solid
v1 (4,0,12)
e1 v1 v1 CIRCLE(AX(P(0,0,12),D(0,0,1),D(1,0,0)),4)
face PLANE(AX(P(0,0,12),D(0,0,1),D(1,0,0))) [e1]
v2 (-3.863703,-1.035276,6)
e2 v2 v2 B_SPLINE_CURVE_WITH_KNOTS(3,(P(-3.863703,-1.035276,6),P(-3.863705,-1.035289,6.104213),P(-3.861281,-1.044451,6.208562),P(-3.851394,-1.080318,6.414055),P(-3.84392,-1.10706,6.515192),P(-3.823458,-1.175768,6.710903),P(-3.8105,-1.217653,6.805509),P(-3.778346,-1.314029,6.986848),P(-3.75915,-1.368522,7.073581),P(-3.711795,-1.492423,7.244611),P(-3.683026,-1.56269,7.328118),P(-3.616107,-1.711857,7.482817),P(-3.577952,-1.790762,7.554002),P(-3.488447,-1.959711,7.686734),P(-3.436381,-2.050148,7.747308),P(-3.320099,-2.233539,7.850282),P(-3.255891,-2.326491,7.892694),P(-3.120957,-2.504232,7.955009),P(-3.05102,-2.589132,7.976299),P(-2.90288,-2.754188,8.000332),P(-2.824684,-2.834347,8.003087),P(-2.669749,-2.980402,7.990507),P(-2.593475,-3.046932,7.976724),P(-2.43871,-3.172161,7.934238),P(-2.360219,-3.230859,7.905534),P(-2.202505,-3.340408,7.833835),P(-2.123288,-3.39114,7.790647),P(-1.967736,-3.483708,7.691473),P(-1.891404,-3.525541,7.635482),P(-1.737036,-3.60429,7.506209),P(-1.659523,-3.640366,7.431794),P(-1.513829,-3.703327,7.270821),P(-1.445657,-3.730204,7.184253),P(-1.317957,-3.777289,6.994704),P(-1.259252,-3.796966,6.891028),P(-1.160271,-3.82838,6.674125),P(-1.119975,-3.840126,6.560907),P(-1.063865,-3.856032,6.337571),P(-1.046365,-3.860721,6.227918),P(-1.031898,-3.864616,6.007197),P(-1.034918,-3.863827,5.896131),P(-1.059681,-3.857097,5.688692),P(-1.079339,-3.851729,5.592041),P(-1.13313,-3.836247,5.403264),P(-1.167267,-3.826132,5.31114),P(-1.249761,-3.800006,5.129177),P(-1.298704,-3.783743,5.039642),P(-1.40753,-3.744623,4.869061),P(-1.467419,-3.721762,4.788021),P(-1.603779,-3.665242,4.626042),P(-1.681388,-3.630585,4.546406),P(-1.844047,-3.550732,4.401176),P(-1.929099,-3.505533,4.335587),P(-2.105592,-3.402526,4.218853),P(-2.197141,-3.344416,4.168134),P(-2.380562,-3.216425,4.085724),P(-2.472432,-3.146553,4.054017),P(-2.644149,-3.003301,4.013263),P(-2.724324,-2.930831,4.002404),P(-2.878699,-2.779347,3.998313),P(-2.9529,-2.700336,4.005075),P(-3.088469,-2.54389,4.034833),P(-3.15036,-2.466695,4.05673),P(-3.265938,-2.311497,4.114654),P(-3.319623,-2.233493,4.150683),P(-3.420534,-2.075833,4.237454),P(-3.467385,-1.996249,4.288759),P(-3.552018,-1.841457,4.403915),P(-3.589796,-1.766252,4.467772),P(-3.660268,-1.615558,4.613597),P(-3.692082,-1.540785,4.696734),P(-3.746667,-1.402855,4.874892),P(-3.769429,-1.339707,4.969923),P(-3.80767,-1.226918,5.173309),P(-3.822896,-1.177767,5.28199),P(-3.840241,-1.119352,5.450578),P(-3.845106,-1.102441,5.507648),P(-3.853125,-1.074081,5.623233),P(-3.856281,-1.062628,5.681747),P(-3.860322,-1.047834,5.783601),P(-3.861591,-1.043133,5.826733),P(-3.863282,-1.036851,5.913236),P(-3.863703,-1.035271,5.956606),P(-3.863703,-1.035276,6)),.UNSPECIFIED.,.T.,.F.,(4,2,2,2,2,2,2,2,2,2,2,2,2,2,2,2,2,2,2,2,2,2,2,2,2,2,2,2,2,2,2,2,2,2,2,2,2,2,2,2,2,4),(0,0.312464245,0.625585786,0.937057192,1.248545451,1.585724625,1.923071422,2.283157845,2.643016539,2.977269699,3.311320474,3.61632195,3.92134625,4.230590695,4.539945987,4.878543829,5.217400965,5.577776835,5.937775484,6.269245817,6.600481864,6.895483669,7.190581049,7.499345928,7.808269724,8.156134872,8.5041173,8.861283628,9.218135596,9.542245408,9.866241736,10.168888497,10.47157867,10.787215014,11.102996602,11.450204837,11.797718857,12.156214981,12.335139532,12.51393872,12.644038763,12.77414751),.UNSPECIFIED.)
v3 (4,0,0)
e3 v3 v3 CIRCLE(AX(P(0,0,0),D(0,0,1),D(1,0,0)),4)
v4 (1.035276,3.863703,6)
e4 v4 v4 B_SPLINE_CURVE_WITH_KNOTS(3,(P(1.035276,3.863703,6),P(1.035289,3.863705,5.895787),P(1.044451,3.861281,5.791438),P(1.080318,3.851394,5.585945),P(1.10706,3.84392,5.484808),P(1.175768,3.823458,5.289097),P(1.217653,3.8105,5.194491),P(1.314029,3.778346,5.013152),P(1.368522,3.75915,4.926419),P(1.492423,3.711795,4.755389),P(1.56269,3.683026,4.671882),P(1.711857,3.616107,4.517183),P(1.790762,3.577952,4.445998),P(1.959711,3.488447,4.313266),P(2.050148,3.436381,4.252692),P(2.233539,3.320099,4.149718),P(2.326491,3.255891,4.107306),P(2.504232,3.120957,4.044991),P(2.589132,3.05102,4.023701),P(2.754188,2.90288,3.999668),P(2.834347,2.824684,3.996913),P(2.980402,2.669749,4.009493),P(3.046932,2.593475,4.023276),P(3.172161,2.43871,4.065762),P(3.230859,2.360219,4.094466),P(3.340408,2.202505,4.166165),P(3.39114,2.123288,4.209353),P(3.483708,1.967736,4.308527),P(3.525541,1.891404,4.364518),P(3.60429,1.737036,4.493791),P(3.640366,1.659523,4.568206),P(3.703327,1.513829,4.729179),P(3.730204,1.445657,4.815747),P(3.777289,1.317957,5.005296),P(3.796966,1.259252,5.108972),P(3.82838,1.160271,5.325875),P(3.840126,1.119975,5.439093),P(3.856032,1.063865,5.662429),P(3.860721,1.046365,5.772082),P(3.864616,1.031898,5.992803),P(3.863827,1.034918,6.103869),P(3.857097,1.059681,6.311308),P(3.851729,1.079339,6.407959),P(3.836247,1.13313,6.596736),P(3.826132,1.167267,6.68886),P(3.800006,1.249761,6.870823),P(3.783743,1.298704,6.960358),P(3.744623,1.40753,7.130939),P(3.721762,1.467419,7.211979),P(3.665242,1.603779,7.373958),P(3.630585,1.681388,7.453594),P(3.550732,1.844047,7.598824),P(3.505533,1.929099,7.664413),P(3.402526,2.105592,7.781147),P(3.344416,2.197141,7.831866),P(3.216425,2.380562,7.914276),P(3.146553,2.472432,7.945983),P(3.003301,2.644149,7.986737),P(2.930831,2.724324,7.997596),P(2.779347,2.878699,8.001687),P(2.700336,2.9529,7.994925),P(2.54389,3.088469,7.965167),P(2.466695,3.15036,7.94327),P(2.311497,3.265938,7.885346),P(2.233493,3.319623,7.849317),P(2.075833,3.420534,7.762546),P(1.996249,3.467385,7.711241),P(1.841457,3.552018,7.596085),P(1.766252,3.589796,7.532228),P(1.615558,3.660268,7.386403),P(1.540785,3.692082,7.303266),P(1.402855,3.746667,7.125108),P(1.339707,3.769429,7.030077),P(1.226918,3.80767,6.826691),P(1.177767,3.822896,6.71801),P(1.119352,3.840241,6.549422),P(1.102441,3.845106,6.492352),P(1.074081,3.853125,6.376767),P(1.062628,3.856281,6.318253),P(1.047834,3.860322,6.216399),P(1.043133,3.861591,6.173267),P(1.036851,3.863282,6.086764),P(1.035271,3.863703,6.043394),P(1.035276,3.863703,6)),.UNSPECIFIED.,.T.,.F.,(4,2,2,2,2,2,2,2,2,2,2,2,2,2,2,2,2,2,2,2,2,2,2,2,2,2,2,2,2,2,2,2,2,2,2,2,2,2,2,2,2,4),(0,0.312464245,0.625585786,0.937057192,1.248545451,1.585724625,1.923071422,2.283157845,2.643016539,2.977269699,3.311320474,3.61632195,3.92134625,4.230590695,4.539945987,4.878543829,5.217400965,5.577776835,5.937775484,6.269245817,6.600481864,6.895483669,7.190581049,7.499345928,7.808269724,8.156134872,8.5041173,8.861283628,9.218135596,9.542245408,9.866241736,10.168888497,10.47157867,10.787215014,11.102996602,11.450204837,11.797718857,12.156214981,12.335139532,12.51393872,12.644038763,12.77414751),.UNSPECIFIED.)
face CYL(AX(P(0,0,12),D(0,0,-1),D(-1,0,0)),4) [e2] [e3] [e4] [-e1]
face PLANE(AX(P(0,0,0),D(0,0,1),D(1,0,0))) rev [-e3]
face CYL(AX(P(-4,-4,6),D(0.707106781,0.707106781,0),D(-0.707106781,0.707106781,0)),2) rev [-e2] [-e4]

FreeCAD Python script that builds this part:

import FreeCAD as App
import Part
import Sketcher

doc = App.newDocument("Part")
body = doc.addObject("PartDesign::Body", "Body")

# Sketch on XY plane
sketch1 = body.newObject("Sketcher::SketchObject", "Sketch")
sketch1.AttachmentSupport = (doc.getObject("XY_Plane"), [""])
sketch1.MapMode = "FlatFace"
sketch1.addGeometry(Part.Circle(App.Vector(0, 0, 0), App.Vector(0, 0, 1), 4), False)
sketch1.addConstraint([
    Sketcher.Constraint("Coincident", 0, 3, -1, 1),
    Sketcher.Constraint("Diameter", 0, 8.0),
])
pad1 = body.newObject("PartDesign::Pad", "Pad")
pad1.Profile = sketch1
pad1.Length = 12

# Sketch on an angled plane
sketch2 = body.newObject("Sketcher::SketchObject", "Sketch001")
sketch2.Placement = App.Placement(App.Vector(2.828427, 2.828427, 0), App.Rotation(App.Vector(0.707106781, -0.707106781, 0), App.Vector(0, 0, -0.999999999), App.Vector(0.707106781, 0.707106781, 0), "ZXY"))
sketch2.addGeometry(Part.Circle(App.Vector(0, -6, 0), App.Vector(0, 0, 1), 2), False)
sketch2.addConstraint([
    Sketcher.Constraint("PointOnObject", 0, 3, -2),
    Sketcher.Constraint("Diameter", 0, 4.0),
    Sketcher.Constraint("DistanceY", 0, 3, -1, 1, 6.0),
])
pocket1 = body.newObject("PartDesign::Pocket", "Pocket")
pocket1.Profile = sketch2
pocket1.Type = "ThroughAll"

doc.recompute()
